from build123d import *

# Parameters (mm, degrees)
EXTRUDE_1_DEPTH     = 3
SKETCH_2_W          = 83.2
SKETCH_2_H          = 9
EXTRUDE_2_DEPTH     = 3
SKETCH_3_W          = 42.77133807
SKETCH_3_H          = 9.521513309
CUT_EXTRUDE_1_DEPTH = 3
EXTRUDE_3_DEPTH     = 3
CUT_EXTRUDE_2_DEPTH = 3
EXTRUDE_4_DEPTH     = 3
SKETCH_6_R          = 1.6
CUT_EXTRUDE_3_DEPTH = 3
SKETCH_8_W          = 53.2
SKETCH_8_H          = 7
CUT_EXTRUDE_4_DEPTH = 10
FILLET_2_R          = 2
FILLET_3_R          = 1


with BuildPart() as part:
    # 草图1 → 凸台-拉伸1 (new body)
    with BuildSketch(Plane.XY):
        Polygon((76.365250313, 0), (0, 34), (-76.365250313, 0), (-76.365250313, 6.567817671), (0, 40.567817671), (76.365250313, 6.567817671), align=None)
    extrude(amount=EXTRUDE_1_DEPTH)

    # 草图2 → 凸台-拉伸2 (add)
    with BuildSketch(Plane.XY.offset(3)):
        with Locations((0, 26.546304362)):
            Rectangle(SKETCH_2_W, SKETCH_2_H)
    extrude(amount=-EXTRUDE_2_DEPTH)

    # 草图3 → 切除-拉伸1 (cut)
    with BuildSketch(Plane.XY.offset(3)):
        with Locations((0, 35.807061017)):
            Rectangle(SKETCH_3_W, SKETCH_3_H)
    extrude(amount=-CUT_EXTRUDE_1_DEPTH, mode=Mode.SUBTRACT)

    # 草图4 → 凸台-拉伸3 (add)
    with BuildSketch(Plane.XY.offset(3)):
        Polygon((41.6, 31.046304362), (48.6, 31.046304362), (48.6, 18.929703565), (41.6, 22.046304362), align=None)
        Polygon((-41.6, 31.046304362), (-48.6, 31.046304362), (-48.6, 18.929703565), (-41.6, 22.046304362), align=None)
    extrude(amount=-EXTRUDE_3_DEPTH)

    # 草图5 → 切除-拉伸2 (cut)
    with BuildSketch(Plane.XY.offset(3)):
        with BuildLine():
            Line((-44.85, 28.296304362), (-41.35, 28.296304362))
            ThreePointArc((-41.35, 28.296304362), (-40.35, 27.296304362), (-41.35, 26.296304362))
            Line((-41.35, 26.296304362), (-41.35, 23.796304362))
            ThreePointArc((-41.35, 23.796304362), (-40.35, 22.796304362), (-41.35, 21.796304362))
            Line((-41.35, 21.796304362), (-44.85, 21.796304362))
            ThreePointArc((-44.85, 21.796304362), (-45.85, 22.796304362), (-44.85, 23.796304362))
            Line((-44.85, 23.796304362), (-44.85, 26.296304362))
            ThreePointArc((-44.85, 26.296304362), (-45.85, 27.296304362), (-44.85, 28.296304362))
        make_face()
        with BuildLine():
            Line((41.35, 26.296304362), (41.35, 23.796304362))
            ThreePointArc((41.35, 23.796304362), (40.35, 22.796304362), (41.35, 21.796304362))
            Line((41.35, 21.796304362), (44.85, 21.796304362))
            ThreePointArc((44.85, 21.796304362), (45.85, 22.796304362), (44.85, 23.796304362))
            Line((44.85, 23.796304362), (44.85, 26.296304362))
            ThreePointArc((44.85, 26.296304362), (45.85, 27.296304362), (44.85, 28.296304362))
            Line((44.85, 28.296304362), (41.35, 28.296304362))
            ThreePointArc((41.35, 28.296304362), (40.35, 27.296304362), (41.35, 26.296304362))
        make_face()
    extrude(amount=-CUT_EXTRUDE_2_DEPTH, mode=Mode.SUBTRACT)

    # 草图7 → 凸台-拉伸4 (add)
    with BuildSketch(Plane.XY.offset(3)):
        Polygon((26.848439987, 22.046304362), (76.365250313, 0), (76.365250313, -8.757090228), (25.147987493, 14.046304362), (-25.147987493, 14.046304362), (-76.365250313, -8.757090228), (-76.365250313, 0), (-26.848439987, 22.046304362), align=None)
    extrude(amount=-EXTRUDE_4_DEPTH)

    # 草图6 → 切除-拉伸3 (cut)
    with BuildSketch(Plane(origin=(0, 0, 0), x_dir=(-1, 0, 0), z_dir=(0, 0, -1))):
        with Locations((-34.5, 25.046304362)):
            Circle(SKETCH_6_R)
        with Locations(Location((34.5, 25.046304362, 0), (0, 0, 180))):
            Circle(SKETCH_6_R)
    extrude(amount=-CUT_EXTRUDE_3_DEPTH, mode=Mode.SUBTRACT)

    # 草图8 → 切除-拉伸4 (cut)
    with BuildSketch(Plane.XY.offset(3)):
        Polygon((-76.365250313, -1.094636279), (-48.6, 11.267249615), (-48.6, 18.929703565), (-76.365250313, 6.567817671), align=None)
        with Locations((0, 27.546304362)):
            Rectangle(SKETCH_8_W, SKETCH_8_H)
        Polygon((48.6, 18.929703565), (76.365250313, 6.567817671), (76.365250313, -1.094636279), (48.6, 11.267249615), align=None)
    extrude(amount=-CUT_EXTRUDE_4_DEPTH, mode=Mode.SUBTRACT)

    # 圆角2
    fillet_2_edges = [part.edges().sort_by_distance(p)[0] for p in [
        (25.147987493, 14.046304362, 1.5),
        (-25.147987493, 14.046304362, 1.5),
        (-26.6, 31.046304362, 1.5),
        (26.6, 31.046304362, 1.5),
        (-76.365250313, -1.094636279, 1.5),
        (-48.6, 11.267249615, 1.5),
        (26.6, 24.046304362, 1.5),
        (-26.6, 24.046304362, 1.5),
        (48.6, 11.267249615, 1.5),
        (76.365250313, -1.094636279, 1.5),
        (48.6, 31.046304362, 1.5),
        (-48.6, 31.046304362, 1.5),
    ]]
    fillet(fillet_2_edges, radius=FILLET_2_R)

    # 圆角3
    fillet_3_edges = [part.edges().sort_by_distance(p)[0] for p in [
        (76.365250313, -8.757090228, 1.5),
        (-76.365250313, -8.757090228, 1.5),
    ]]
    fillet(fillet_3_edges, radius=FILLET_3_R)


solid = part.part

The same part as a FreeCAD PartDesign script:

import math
import FreeCAD as App
import Part
import Sketcher

V = App.Vector
Q = App.Units.Quantity


def edges_at(feature, points):
    """Names of the edges that pass closest to the given points."""
    edges = feature.Shape.Edges
    near = lambda p: min(range(len(edges)), key=lambda i: edges[i].distToShape(Part.Vertex(*p))[0])
    return sorted({f"Edge{near(p) + 1}" for p in points})

doc = App.newDocument("Part")
body = doc.addObject("PartDesign::Body", "Body")

# Sketch on XY plane
sketch1 = body.newObject("Sketcher::SketchObject", "Sketch")
sketch1.AttachmentSupport = (doc.getObject("XY_Plane"), [""])
sketch1.MapMode = "FlatFace"
sketch1.addGeometry(Part.LineSegment(V(0, 34, 0), V(76, 0, 0)), False)
sketch1.addGeometry(Part.LineSegment(V(76, 0, 0), V(76, 7, 0)), False)
sketch1.addGeometry(Part.LineSegment(V(76, 7, 0), V(0, 41, 0)), False)
sketch1.addGeometry(Part.LineSegment(V(0, 41, 0), V(-76, 7, 0)), False)
sketch1.addGeometry(Part.LineSegment(V(-76, 7, 0), V(-76, 0, 0)), False)
sketch1.addGeometry(Part.LineSegment(V(-76, 0, 0), V(0, 34, 0)), False)
sketch1.addConstraint(Sketcher.Constraint("Coincident", 0, 2, 1, 1))
sketch1.addConstraint(Sketcher.Constraint("Coincident", 1, 2, 2, 1))
sketch1.addConstraint(Sketcher.Constraint("Coincident", 2, 2, 3, 1))
sketch1.addConstraint(Sketcher.Constraint("Coincident", 3, 2, 4, 1))
sketch1.addConstraint(Sketcher.Constraint("Coincident", 4, 2, 5, 1))
sketch1.addConstraint(Sketcher.Constraint("Coincident", 5, 2, 0, 1))
sketch1.addConstraint(Sketcher.Constraint("Vertical", 1))
sketch1.addConstraint(Sketcher.Constraint("Vertical", 4))
sketch1.addConstraint(Sketcher.Constraint("Symmetric", 0, 2, 4, 2, -1, 1))
sketch1.addConstraint(Sketcher.Constraint("PointOnObject", 0, 2, -1))
sketch1.addConstraint(Sketcher.Constraint("PointOnObject", 2, 2, -2))
sketch1.addConstraint(Sketcher.Constraint("PointOnObject", 5, 2, -2))
sketch1.addConstraint(Sketcher.Constraint("Parallel", 0, 2))
sketch1.addConstraint(Sketcher.Constraint("Parallel", 3, 5))
sketch1.addConstraint(Sketcher.Constraint("Angle", 0, Q("-24 deg")))
sketch1.addConstraint(Sketcher.Constraint("DistanceY", -1, 1, 5, 2, 34.0))
sketch1.addConstraint(Sketcher.Constraint("DistanceY", 1, 1, 1, 2, 6.567818))
pad1 = body.newObject("PartDesign::Pad", "Pad")
pad1.Profile = sketch1
pad1.Length = 3

# Sketch on XY plane
sketch2 = body.newObject("Sketcher::SketchObject", "Sketch001")
sketch2.AttachmentSupport = (doc.getObject("XY_Plane"), [""])
sketch2.MapMode = "FlatFace"
sketch2.AttachmentOffset = App.Placement(V(0, 0, 3), App.Rotation())
sketch2.addGeometry(Part.LineSegment(V(-42, 31, 0), V(-42, 22, 0)), False)
sketch2.addGeometry(Part.LineSegment(V(-42, 22, 0), V(42, 22, 0)), False)
sketch2.addGeometry(Part.LineSegment(V(42, 22, 0), V(42, 31, 0)), False)
sketch2.addGeometry(Part.LineSegment(V(42, 31, 0), V(-42, 31, 0)), False)
sketch2.addConstraint(Sketcher.Constraint("Coincident", 0, 2, 1, 1))
sketch2.addConstraint(Sketcher.Constraint("Coincident", 1, 2, 2, 1))
sketch2.addConstraint(Sketcher.Constraint("Coincident", 2, 2, 3, 1))
sketch2.addConstraint(Sketcher.Constraint("Coincident", 3, 2, 0, 1))
sketch2.addConstraint(Sketcher.Constraint("Vertical", 0))
sketch2.addConstraint(Sketcher.Constraint("Horizontal", 1))
sketch2.addConstraint(Sketcher.Constraint("Vertical", 2))
sketch2.addConstraint(Sketcher.Constraint("Horizontal", 3))
sketch2.addConstraint(Sketcher.Constraint("DistanceY", 0, 2, 0, 1, 9.0))
sketch2.addConstraint(Sketcher.Constraint("DistanceX", 1, 1, 1, 2, 83.2))
sketch2.addConstraint(Sketcher.Constraint("DistanceX", 0, 2, -1, 1, 41.6))
sketch2.addConstraint(Sketcher.Constraint("DistanceY", -1, 1, 0, 2, 22.046304))
pad2 = body.newObject("PartDesign::Pad", "Pad001")
pad2.Profile = sketch2
pad2.Length = 3
pad2.Reversed = True

# Sketch on XY plane
sketch3 = body.newObject("Sketcher::SketchObject", "Sketch002")
sketch3.AttachmentSupport = (doc.getObject("XY_Plane"), [""])
sketch3.MapMode = "FlatFace"
sketch3.AttachmentOffset = App.Placement(V(0, 0, 3), App.Rotation())
sketch3.addGeometry(Part.LineSegment(V(-21, 41, 0), V(-21, 31, 0)), False)
sketch3.addGeometry(Part.LineSegment(V(-21, 31, 0), V(21, 31, 0)), False)
sketch3.addGeometry(Part.LineSegment(V(21, 31, 0), V(21, 41, 0)), False)
sketch3.addGeometry(Part.LineSegment(V(21, 41, 0), V(-21, 41, 0)), False)
sketch3.addConstraint(Sketcher.Constraint("Coincident", 0, 2, 1, 1))
sketch3.addConstraint(Sketcher.Constraint("Coincident", 1, 2, 2, 1))
sketch3.addConstraint(Sketcher.Constraint("Coincident", 2, 2, 3, 1))
sketch3.addConstraint(Sketcher.Constraint("Coincident", 3, 2, 0, 1))
sketch3.addConstraint(Sketcher.Constraint("Vertical", 0))
sketch3.addConstraint(Sketcher.Constraint("Horizontal", 1))
sketch3.addConstraint(Sketcher.Constraint("Vertical", 2))
sketch3.addConstraint(Sketcher.Constraint("Horizontal", 3))
sketch3.addConstraint(Sketcher.Constraint("DistanceX", 1, 1, 1, 2, 42.771338))
sketch3.addConstraint(Sketcher.Constraint("DistanceY", 0, 2, 0, 1, 9.521513))
sketch3.addConstraint(Sketcher.Constraint("DistanceX", 0, 2, -1, 1, 21.385669))
sketch3.addConstraint(Sketcher.Constraint("DistanceY", -1, 1, 0, 2, 31.046304))
pocket1 = body.newObject("PartDesign::Pocket", "Pocket")
pocket1.Profile = sketch3
pocket1.Length = 3

# Sketch on XY plane
sketch4 = body.newObject("Sketcher::SketchObject", "Sketch003")
sketch4.AttachmentSupport = (doc.getObject("XY_Plane"), [""])
sketch4.MapMode = "FlatFace"
sketch4.AttachmentOffset = App.Placement(V(0, 0, 3), App.Rotation())
sketch4.addGeometry(Part.LineSegment(V(49, 31, 0), V(42, 31, 0)), False)
sketch4.addGeometry(Part.LineSegment(V(42, 31, 0), V(42, 22, 0)), False)
sketch4.addGeometry(Part.LineSegment(V(42, 22, 0), V(49, 19, 0)), False)
sketch4.addGeometry(Part.LineSegment(V(49, 19, 0), V(49, 31, 0)), False)
sketch4.addGeometry(Part.LineSegment(V(-42, 31, 0), V(-49, 31, 0)), False)
sketch4.addGeometry(Part.LineSegment(V(-49, 31, 0), V(-49, 19, 0)), False)
sketch4.addGeometry(Part.LineSegment(V(-49, 19, 0), V(-42, 22, 0)), False)
sketch4.addGeometry(Part.LineSegment(V(-42, 22, 0), V(-42, 31, 0)), False)
sketch4.addConstraint(Sketcher.Constraint("Coincident", 0, 2, 1, 1))
sketch4.addConstraint(Sketcher.Constraint("Coincident", 1, 2, 2, 1))
sketch4.addConstraint(Sketcher.Constraint("Coincident", 2, 2, 3, 1))
sketch4.addConstraint(Sketcher.Constraint("Coincident", 3, 2, 0, 1))
sketch4.addConstraint(Sketcher.Constraint("Coincident", 4, 2, 5, 1))
sketch4.addConstraint(Sketcher.Constraint("Coincident", 5, 2, 6, 1))
sketch4.addConstraint(Sketcher.Constraint("Coincident", 6, 2, 7, 1))
sketch4.addConstraint(Sketcher.Constraint("Coincident", 7, 2, 4, 1))
sketch4.addConstraint(Sketcher.Constraint("Horizontal", 0))
sketch4.addConstraint(Sketcher.Constraint("Vertical", 1))
sketch4.addConstraint(Sketcher.Constraint("Vertical", 3))
sketch4.addConstraint(Sketcher.Constraint("Horizontal", 4))
sketch4.addConstraint(Sketcher.Constraint("Vertical", 5))
sketch4.addConstraint(Sketcher.Constraint("Vertical", 7))
sketch4.addConstraint(Sketcher.Constraint("Symmetric", 3, 2, 4, 2, -2))
sketch4.addConstraint(Sketcher.Constraint("Symmetric", 1, 2, 6, 2, -2))
sketch4.addConstraint(Sketcher.Constraint("Horizontal", 2, 2, 5, 2))
sketch4.addConstraint(Sketcher.Constraint("DistanceX", 0, 2, 0, 1, 7.0))
sketch4.addConstraint(Sketcher.Constraint("DistanceY", 1, 2, 1, 1, 9.0))
sketch4.addConstraint(Sketcher.Constraint("Angle", 2, Q("-24 deg")))
sketch4.addConstraint(Sketcher.Constraint("DistanceX", -1, 1, 0, 2, 41.6))
sketch4.addConstraint(Sketcher.Constraint("DistanceY", -1, 1, 0, 2, 31.046304))
pad3 = body.newObject("PartDesign::Pad", "Pad002")
pad3.Profile = sketch4
pad3.Length = 3
pad3.Reversed = True

# Sketch on XY plane
sketch5 = body.newObject("Sketcher::SketchObject", "Sketch004")
sketch5.AttachmentSupport = (doc.getObject("XY_Plane"), [""])
sketch5.MapMode = "FlatFace"
sketch5.AttachmentOffset = App.Placement(V(0, 0, 3), App.Rotation())
sketch5.addGeometry(Part.LineSegment(V(-41.4, 28.3, 0), V(-44.9, 28.3, 0)), False)
sketch5.addGeometry(Part.ArcOfCircle(Part.Circle(V(-44.9, 27.3, 0), V(0, 0, 1), 1), math.radians(90), math.radians(270)), False)
sketch5.addGeometry(Part.LineSegment(V(-44.9, 26.3, 0), V(-44.9, 23.8, 0)), False)
sketch5.addGeometry(Part.ArcOfCircle(Part.Circle(V(-44.9, 22.8, 0), V(0, 0, 1), 1), math.radians(90), math.radians(270)), False)
sketch5.addGeometry(Part.LineSegment(V(-44.9, 21.8, 0), V(-41.4, 21.8, 0)), False)
sketch5.addGeometry(Part.ArcOfCircle(Part.Circle(V(-41.4, 22.8, 0), V(0, 0, 1), 1), math.radians(-90), math.radians(90)), False)
sketch5.addGeometry(Part.LineSegment(V(-41.4, 23.8, 0), V(-41.4, 26.3, 0)), False)
sketch5.addGeometry(Part.ArcOfCircle(Part.Circle(V(-41.4, 27.3, 0), V(0, 0, 1), 1), math.radians(-90), math.radians(90)), False)
sketch5.addGeometry(Part.LineSegment(V(41.4, 26.3, 0), V(41.4, 23.8, 0)), False)
sketch5.addGeometry(Part.ArcOfCircle(Part.Circle(V(41.4, 22.8, 0), V(0, 0, 1), 1), math.radians(90), math.radians(270)), False)
sketch5.addGeometry(Part.LineSegment(V(41.4, 21.8, 0), V(44.9, 21.8, 0)), False)
sketch5.addGeometry(Part.ArcOfCircle(Part.Circle(V(44.9, 22.8, 0), V(0, 0, 1), 1), math.radians(-90), math.radians(90)), False)
sketch5.addGeometry(Part.LineSegment(V(44.9, 23.8, 0), V(44.9, 26.3, 0)), False)
sketch5.addGeometry(Part.ArcOfCircle(Part.Circle(V(44.9, 27.3, 0), V(0, 0, 1), 1), math.radians(-90), math.radians(90)), False)
sketch5.addGeometry(Part.LineSegment(V(44.9, 28.3, 0), V(41.4, 28.3, 0)), False)
sketch5.addGeometry(Part.ArcOfCircle(Part.Circle(V(41.4, 27.3, 0), V(0, 0, 1), 1), math.radians(90), math.radians(270)), False)
sketch5.addConstraint(Sketcher.Constraint("Tangent", 0, 2, 1, 1))
sketch5.addConstraint(Sketcher.Constraint("Coincident", 1, 2, 2, 1))
sketch5.addConstraint(Sketcher.Constraint("Coincident", 2, 2, 3, 1))
sketch5.addConstraint(Sketcher.Constraint("Tangent", 3, 2, 4, 1))
sketch5.addConstraint(Sketcher.Constraint("Tangent", 4, 2, 5, 1))
sketch5.addConstraint(Sketcher.Constraint("Coincident", 5, 2, 6, 1))
sketch5.addConstraint(Sketcher.Constraint("Coincident", 6, 2, 7, 1))
sketch5.addConstraint(Sketcher.Constraint("Tangent", 7, 2, 0, 1))
sketch5.addConstraint(Sketcher.Constraint("Coincident", 8, 2, 9, 1))
sketch5.addConstraint(Sketcher.Constraint("Tangent", 9, 2, 10, 1))
sketch5.addConstraint(Sketcher.Constraint("Tangent", 10, 2, 11, 1))
sketch5.addConstraint(Sketcher.Constraint("Coincident", 11, 2, 12, 1))
sketch5.addConstraint(Sketcher.Constraint("Coincident", 12, 2, 13, 1))
sketch5.addConstraint(Sketcher.Constraint("Tangent", 13, 2, 14, 1))
sketch5.addConstraint(Sketcher.Constraint("Tangent", 14, 2, 15, 1))
sketch5.addConstraint(Sketcher.Constraint("Coincident", 15, 2, 8, 1))
sketch5.addConstraint(Sketcher.Constraint("Horizontal", 0))
sketch5.addConstraint(Sketcher.Constraint("Vertical", 2))
sketch5.addConstraint(Sketcher.Constraint("Horizontal", 4))
sketch5.addConstraint(Sketcher.Constraint("Vertical", 6))
sketch5.addConstraint(Sketcher.Constraint("Vertical", 8))
sketch5.addConstraint(Sketcher.Constraint("Horizontal", 10))
sketch5.addConstraint(Sketcher.Constraint("Vertical", 12))
sketch5.addConstraint(Sketcher.Constraint("Horizontal", 14))
sketch5.addConstraint(Sketcher.Constraint("Equal", 1, 3))
sketch5.addConstraint(Sketcher.Constraint("Equal", 3, 5))
sketch5.addConstraint(Sketcher.Constraint("Equal", 5, 7))
sketch5.addConstraint(Sketcher.Constraint("Equal", 7, 9))
sketch5.addConstraint(Sketcher.Constraint("Equal", 9, 11))
sketch5.addConstraint(Sketcher.Constraint("Equal", 11, 13))
sketch5.addConstraint(Sketcher.Constraint("Equal", 13, 15))
sketch5.addConstraint(Sketcher.Constraint("Symmetric", 5, 3, 9, 3, -2))
sketch5.addConstraint(Sketcher.Constraint("Symmetric", 1, 3, 13, 3, -2))
sketch5.addConstraint(Sketcher.Constraint("Vertical", 1, 3, 3, 3))
sketch5.addConstraint(Sketcher.Constraint("Vertical", 5, 3, 7, 3))
sketch5.addConstraint(Sketcher.Constraint("Vertical", 11, 3, 13, 3))
sketch5.addConstraint(Sketcher.Constraint("Vertical", 9, 3, 15, 3))
sketch5.addConstraint(Sketcher.Constraint("Vertical", 0, 2, 1, 2))
sketch5.addConstraint(Sketcher.Constraint("Vertical", 4, 2, 5, 2))
sketch5.addConstraint(Sketcher.Constraint("Vertical", 15, 3, 8, 2))
sketch5.addConstraint(Sketcher.Constraint("Vertical", 10, 2, 11, 2))
sketch5.addConstraint(Sketcher.Constraint("Radius", 1, 1.0))
sketch5.addConstraint(Sketcher.Constraint("DistanceX", 0, 2, 0, 1, 3.5))
sketch5.addConstraint(Sketcher.Constraint("DistanceY", 2, 2, 2, 1, 2.5))
sketch5.addConstraint(Sketcher.Constraint("DistanceX", 5, 3, 9, 3, 82.7))
sketch5.addConstraint(Sketcher.Constraint("DistanceY", -1, 1, 1, 3, 27.296304))
pocket2 = body.newObject("PartDesign::Pocket", "Pocket001")
pocket2.Profile = sketch5
pocket2.Length = 3

# Sketch on XY plane
sketch6 = body.newObject("Sketcher::SketchObject", "Sketch005")
sketch6.AttachmentSupport = (doc.getObject("XY_Plane"), [""])
sketch6.MapMode = "FlatFace"
sketch6.AttachmentOffset = App.Placement(V(0, 0, 3), App.Rotation())
sketch6.addGeometry(Part.LineSegment(V(76, 0, 0), V(27, 22, 0)), False)
sketch6.addGeometry(Part.LineSegment(V(27, 22, 0), V(-27, 22, 0)), False)
sketch6.addGeometry(Part.LineSegment(V(-27, 22, 0), V(-76, 0, 0)), False)
sketch6.addGeometry(Part.LineSegment(V(-76, 0, 0), V(-76, -9, 0)), False)
sketch6.addGeometry(Part.LineSegment(V(-76, -9, 0), V(-25, 14, 0)), False)
sketch6.addGeometry(Part.LineSegment(V(-25, 14, 0), V(25, 14, 0)), False)
sketch6.addGeometry(Part.LineSegment(V(25, 14, 0), V(76, -9, 0)), False)
sketch6.addGeometry(Part.LineSegment(V(76, -9, 0), V(76, 0, 0)), False)
sketch6.addConstraint(Sketcher.Constraint("Coincident", 0, 2, 1, 1))
sketch6.addConstraint(Sketcher.Constraint("Coincident", 1, 2, 2, 1))
sketch6.addConstraint(Sketcher.Constraint("Coincident", 2, 2, 3, 1))
sketch6.addConstraint(Sketcher.Constraint("Coincident", 3, 2, 4, 1))
sketch6.addConstraint(Sketcher.Constraint("Coincident", 4, 2, 5, 1))
sketch6.addConstraint(Sketcher.Constraint("Coincident", 5, 2, 6, 1))
sketch6.addConstraint(Sketcher.Constraint("Coincident", 6, 2, 7, 1))
sketch6.addConstraint(Sketcher.Constraint("Coincident", 7, 2, 0, 1))
sketch6.addConstraint(Sketcher.Constraint("Horizontal", 1))
sketch6.addConstraint(Sketcher.Constraint("Vertical", 3))
sketch6.addConstraint(Sketcher.Constraint("Horizontal", 5))
sketch6.addConstraint(Sketcher.Constraint("Vertical", 7))
sketch6.addConstraint(Sketcher.Constraint("Symmetric", 2, 2, 7, 2, -1, 1))
sketch6.addConstraint(Sketcher.Constraint("PointOnObject", 2, 2, -1))
sketch6.addConstraint(Sketcher.Constraint("Parallel", 2, 4))
sketch6.addConstraint(Sketcher.Constraint("Parallel", 0, 6))
sketch6.addConstraint(Sketcher.Constraint("Horizontal", 3, 2, 6, 2))
sketch6.addConstraint(Sketcher.Constraint("Equal", 0, 2))
sketch6.addConstraint(Sketcher.Constraint("Angle", 0, Q("156 deg")))
sketch6.addConstraint(Sketcher.Constraint("DistanceY", 4, 2, 1, 2, 8.0))
sketch6.addConstraint(Sketcher.Constraint("DistanceX", 1, 2, 1, 1, 53.69688))
sketch6.addConstraint(Sketcher.Constraint("DistanceY", 3, 2, 3, 1, 8.75709))
sketch6.addConstraint(Sketcher.Constraint("DistanceX", 3, 2, 6, 2, 152.730501))
pad4 = body.newObject("PartDesign::Pad", "Pad003")
pad4.Profile = sketch6
pad4.Length = 3
pad4.Reversed = True

# Sketch on XY plane
sketch7 = body.newObject("Sketcher::SketchObject", "Sketch006")
sketch7.AttachmentSupport = (doc.getObject("XY_Plane"), [""])
sketch7.MapMode = "FlatFace"
sketch7.addGeometry(Part.Circle(V(34.5, 25, 0), V(0, 0, 1), 1.6), False)
sketch7.addGeometry(Part.Circle(V(-34.5, 25, 0), V(0, 0, 1), 1.6), False)
sketch7.addConstraint(Sketcher.Constraint("Equal", 0, 1))
sketch7.addConstraint(Sketcher.Constraint("Symmetric", 0, 3, 1, 3, -2))
sketch7.addConstraint(Sketcher.Constraint("Diameter", 0, 3.2))
sketch7.addConstraint(Sketcher.Constraint("DistanceX", 1, 3, 0, 3, 69.0))
sketch7.addConstraint(Sketcher.Constraint("DistanceY", -1, 1, 0, 3, 25.046304))
pocket3 = body.newObject("PartDesign::Pocket", "Pocket002")
pocket3.Profile = sketch7
pocket3.Length = 3
pocket3.Reversed = True

# Sketch on XY plane
sketch8 = body.newObject("Sketcher::SketchObject", "Sketch007")
sketch8.AttachmentSupport = (doc.getObject("XY_Plane"), [""])
sketch8.MapMode = "FlatFace"
sketch8.AttachmentOffset = App.Placement(V(0, 0, 3), App.Rotation())
sketch8.addGeometry(Part.LineSegment(V(-76, -1, 0), V(-49, 11, 0)), False)
sketch8.addGeometry(Part.LineSegment(V(-49, 11, 0), V(-49, 19, 0)), False)
sketch8.addGeometry(Part.LineSegment(V(-49, 19, 0), V(-76, 7, 0)), False)
sketch8.addGeometry(Part.LineSegment(V(-76, 7, 0), V(-76, -1, 0)), False)
sketch8.addGeometry(Part.LineSegment(V(-27, 31, 0), V(-27, 24, 0)), False)
sketch8.addGeometry(Part.LineSegment(V(-27, 24, 0), V(27, 24, 0)), False)
sketch8.addGeometry(Part.LineSegment(V(27, 24, 0), V(27, 31, 0)), False)
sketch8.addGeometry(Part.LineSegment(V(27, 31, 0), V(-27, 31, 0)), False)
sketch8.addGeometry(Part.LineSegment(V(76, 7, 0), V(49, 19, 0)), False)
sketch8.addGeometry(Part.LineSegment(V(49, 19, 0), V(49, 11, 0)), False)
sketch8.addGeometry(Part.LineSegment(V(49, 11, 0), V(76, -1, 0)), False)
sketch8.addGeometry(Part.LineSegment(V(76, -1, 0), V(76, 7, 0)), False)
sketch8.addConstraint(Sketcher.Constraint("Coincident", 0, 2, 1, 1))
sketch8.addConstraint(Sketcher.Constraint("Coincident", 1, 2, 2, 1))
sketch8.addConstraint(Sketcher.Constraint("Coincident", 2, 2, 3, 1))
sketch8.addConstraint(Sketcher.Constraint("Coincident", 3, 2, 0, 1))
sketch8.addConstraint(Sketcher.Constraint("Coincident", 4, 2, 5, 1))
sketch8.addConstraint(Sketcher.Constraint("Coincident", 5, 2, 6, 1))
sketch8.addConstraint(Sketcher.Constraint("Coincident", 6, 2, 7, 1))
sketch8.addConstraint(Sketcher.Constraint("Coincident", 7, 2, 4, 1))
sketch8.addConstraint(Sketcher.Constraint("Coincident", 8, 2, 9, 1))
sketch8.addConstraint(Sketcher.Constraint("Coincident", 9, 2, 10, 1))
sketch8.addConstraint(Sketcher.Constraint("Coincident", 10, 2, 11, 1))
sketch8.addConstraint(Sketcher.Constraint("Coincident", 11, 2, 8, 1))
sketch8.addConstraint(Sketcher.Constraint("Vertical", 1))
sketch8.addConstraint(Sketcher.Constraint("Vertical", 3))
sketch8.addConstraint(Sketcher.Constraint("Vertical", 4))
sketch8.addConstraint(Sketcher.Constraint("Horizontal", 5))
sketch8.addConstraint(Sketcher.Constraint("Vertical", 6))
sketch8.addConstraint(Sketcher.Constraint("Horizontal", 7))
sketch8.addConstraint(Sketcher.Constraint("Vertical", 9))
sketch8.addConstraint(Sketcher.Constraint("Vertical", 11))
sketch8.addConstraint(Sketcher.Constraint("Symmetric", 1, 2, 8, 2, -2))
sketch8.addConstraint(Sketcher.Constraint("Symmetric", 3, 2, 10, 2, -2))
sketch8.addConstraint(Sketcher.Constraint("Parallel", 0, 2))
sketch8.addConstraint(Sketcher.Constraint("Parallel", 8, 10))
sketch8.addConstraint(Sketcher.Constraint("Horizontal", 0, 2, 9, 2))
sketch8.addConstraint(Sketcher.Constraint("DistanceY", 4, 2, 4, 1, 7.0))
sketch8.addConstraint(Sketcher.Constraint("Angle", 0, Q("24 deg")))
sketch8.addConstraint(Sketcher.Constraint("DistanceX", 5, 1, 5, 2, 53.2))
sketch8.addConstraint(Sketcher.Constraint("DistanceX", 1, 2, 4, 2, 22.0))
sketch8.addConstraint(Sketcher.Constraint("DistanceX", 5, 2, 8, 2, 22.0))
sketch8.addConstraint(Sketcher.Constraint("DistanceY", 1, 2, 4, 2, 5.116601))
sketch8.addConstraint(Sketcher.Constraint("Distance", 0, 30.39285))
sketch8.addConstraint(Sketcher.Constraint("DistanceY", 1, 1, 1, 2, 7.662454))
sketch8.addConstraint(Sketcher.Constraint("DistanceY", -1, 1, 0, 2, 11.26725))
pocket4 = body.newObject("PartDesign::Pocket", "Pocket003")
pocket4.Profile = sketch8
pocket4.Length = 10
doc.recompute()

fillet = body.newObject("PartDesign::Fillet", "Fillet")
fillet.Base = (pocket4, edges_at(pocket4, [
    (25.148, 14.046, 1.5),
    (-25.148, 14.046, 1.5),
    (-26.6, 31.046, 1.5),
    (26.6, 31.046, 1.5),
    (-76.365, -1.095, 1.5),
    (-48.6, 11.267, 1.5),
    (26.6, 24.046, 1.5),
    (-26.6, 24.046, 1.5),
    (48.6, 11.267, 1.5),
    (76.365, -1.095, 1.5),
    (48.6, 31.046, 1.5),
    (-48.6, 31.046, 1.5),
]))
fillet.Radius = 2
doc.recompute()

fillet2 = body.newObject("PartDesign::Fillet", "Fillet001")
fillet2.Base = (fillet, edges_at(fillet, [(76.365, -8.757, 1.5), (-76.365, -8.757, 1.5)]))
fillet2.Radius = 1

doc.recompute()
